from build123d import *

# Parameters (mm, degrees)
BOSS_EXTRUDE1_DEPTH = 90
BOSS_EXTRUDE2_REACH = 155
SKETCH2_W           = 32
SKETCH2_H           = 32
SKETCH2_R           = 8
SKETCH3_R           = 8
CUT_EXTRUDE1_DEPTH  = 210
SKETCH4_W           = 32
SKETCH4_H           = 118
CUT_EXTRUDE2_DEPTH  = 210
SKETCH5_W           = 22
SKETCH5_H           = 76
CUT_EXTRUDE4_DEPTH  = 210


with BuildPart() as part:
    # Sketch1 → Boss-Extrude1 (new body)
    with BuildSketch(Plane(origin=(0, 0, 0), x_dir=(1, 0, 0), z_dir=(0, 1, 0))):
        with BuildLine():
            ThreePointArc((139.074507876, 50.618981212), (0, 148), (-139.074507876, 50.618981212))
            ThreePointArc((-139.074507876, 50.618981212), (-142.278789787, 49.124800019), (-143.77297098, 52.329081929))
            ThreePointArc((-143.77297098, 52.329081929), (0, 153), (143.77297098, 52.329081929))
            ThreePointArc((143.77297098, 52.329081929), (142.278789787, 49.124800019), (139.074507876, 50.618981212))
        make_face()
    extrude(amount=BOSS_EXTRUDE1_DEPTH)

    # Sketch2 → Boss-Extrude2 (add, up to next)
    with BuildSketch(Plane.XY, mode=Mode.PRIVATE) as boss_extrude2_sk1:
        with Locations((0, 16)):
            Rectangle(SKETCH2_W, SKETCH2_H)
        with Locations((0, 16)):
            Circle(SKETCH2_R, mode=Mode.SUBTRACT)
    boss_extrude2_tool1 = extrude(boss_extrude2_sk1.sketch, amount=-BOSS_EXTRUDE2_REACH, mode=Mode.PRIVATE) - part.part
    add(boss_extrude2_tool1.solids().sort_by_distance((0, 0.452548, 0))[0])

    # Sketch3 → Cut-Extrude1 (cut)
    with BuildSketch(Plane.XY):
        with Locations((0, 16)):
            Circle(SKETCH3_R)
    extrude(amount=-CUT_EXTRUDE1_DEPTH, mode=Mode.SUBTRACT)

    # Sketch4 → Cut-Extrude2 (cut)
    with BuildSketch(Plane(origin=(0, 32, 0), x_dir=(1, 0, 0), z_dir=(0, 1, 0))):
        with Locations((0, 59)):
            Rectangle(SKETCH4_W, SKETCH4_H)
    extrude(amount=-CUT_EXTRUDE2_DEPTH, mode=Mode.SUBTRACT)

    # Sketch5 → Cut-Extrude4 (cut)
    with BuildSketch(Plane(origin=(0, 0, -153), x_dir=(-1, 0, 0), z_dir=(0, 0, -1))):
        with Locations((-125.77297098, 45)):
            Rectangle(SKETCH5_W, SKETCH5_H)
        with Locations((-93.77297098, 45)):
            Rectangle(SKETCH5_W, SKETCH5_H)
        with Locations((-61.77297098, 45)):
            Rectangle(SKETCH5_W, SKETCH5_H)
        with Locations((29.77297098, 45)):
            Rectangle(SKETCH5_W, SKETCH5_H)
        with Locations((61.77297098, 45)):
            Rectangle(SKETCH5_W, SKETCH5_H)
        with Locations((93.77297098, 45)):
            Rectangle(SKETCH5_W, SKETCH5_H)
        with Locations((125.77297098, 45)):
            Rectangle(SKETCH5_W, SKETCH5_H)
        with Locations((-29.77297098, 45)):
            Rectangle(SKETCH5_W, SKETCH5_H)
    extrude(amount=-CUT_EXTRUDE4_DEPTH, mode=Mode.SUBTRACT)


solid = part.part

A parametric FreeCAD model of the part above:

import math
import FreeCAD as App
import Part
import Sketcher
from FreeCAD import Vector
Q = App.Units.Quantity


def add_polygon(sketch, points):
    """Adds a closed chain of lines whose ends are joined by coincident constraints."""
    first, n = sketch.GeometryCount, len(points)
    for a, b in zip(points, points[1:] + points[:1]):
        sketch.addGeometry(Part.LineSegment(App.Vector(*a, 0), App.Vector(*b, 0)), False)
    for i in range(n):
        sketch.addConstraint(Sketcher.Constraint("Coincident", first + i, 2, first + (i + 1) % n, 1))

doc = App.newDocument("Part")
body = doc.addObject("PartDesign::Body", "Body")

# Sketch on XZ plane
sketch1 = body.newObject("Sketcher::SketchObject", "Sketch")
sketch1.AttachmentSupport = (doc.getObject("XZ_Plane"), [""])
sketch1.MapMode = "FlatFace"
sketch1.addGeometry([
    Part.ArcOfCircle(Part.Circle(Vector(0, 0, 0), Vector(0, 0, 1), 148), math.radians(-160), math.radians(-20)),
    Part.ArcOfCircle(Part.Circle(Vector(141.423739, -51.474032, 0), Vector(0, 0, 1), 2.5), math.radians(-20), math.radians(160)),
    Part.ArcOfCircle(Part.Circle(Vector(0, 0, 0), Vector(0, 0, 1), 153), math.radians(-160), math.radians(-20)),
    Part.ArcOfCircle(Part.Circle(Vector(-141.423739, -51.474032, 0), Vector(0, 0, 1), 2.5), math.radians(20), math.radians(200)),
], False)
sketch1.addConstraint([
    Sketcher.Constraint("Tangent", 0, 2, 1, 2),
    Sketcher.Constraint("Tangent", 1, 1, 2, 2),
    Sketcher.Constraint("Tangent", 2, 1, 3, 2),
    Sketcher.Constraint("Tangent", 3, 1, 0, 1),
    Sketcher.Constraint("Coincident", 0, 3, -1, 1),
    Sketcher.Constraint("Coincident", 2, 3, -1, 1),
    Sketcher.Constraint("Horizontal", 1, 3, 3, 3),
    Sketcher.Constraint("Radius", 0, Q("148 mm")),
    Sketcher.Constraint("Radius", 2, Q("153 mm")),
    Sketcher.Constraint("DistanceX", -1, 1, 1, 3, Q("141.423739 mm")),
])
pad1 = body.newObject("PartDesign::Pad", "Pad")
pad1.Profile = sketch1
pad1.Length = 90
pad1.Reversed = True

# Sketch on XY plane
sketch2 = body.newObject("Sketcher::SketchObject", "Sketch001")
sketch2.AttachmentSupport = (doc.getObject("XY_Plane"), [""])
sketch2.MapMode = "FlatFace"
add_polygon(sketch2, [(-16, 32), (-16, 0), (16, 0), (16, 32)])  # lines 0-3
sketch2.addGeometry(Part.Circle(Vector(0, 16, 0), Vector(0, 0, 1), 8), False)  # 4
sketch2.addConstraint([
    Sketcher.Constraint("Vertical", 0),
    Sketcher.Constraint("Horizontal", 1),
    Sketcher.Constraint("Vertical", 2),
    Sketcher.Constraint("Horizontal", 3),
    Sketcher.Constraint("Symmetric", 0, 2, 1, 2, -1, 1),
    Sketcher.Constraint("PointOnObject", 4, 3, -2),
    Sketcher.Constraint("Equal", 3, 0),
    Sketcher.Constraint("Diameter", 4, Q("16 mm")),
    Sketcher.Constraint("DistanceX", 1, 1, 1, 2, Q("32 mm")),
    Sketcher.Constraint("DistanceY", -1, 1, 4, 3, Q("16 mm")),
])
pad2 = body.newObject("PartDesign::Pad", "Pad001")
pad2.Profile = sketch2
pad2.Type = "UpToFirst"
pad2.Reversed = True

# Sketch on XY plane
sketch3 = body.newObject("Sketcher::SketchObject", "Sketch002")
sketch3.AttachmentSupport = (doc.getObject("XY_Plane"), [""])
sketch3.MapMode = "FlatFace"
sketch3.addGeometry(Part.Circle(Vector(0, 16, 0), Vector(0, 0, 1), 8), False)
sketch3.addConstraint([
    Sketcher.Constraint("PointOnObject", 0, 3, -2),
    Sketcher.Constraint("Diameter", 0, Q("16 mm")),
    Sketcher.Constraint("DistanceY", -1, 1, 0, 3, Q("16 mm")),
])
pocket1 = body.newObject("PartDesign::Pocket", "Pocket")
pocket1.Profile = sketch3
pocket1.Length = 210

# Sketch on XZ plane
sketch4 = body.newObject("Sketcher::SketchObject", "Sketch003")
sketch4.AttachmentSupport = (doc.getObject("XZ_Plane"), [""])
sketch4.MapMode = "FlatFace"
sketch4.AttachmentOffset = App.Placement(Vector(0, 0, -32), App.Rotation())
add_polygon(sketch4, [(-16, -118), (-16, 0), (16, 0), (16, -118)])  # lines 0-3
sketch4.addConstraint([
    Sketcher.Constraint("Vertical", 0),
    Sketcher.Constraint("Horizontal", 1),
    Sketcher.Constraint("Vertical", 2),
    Sketcher.Constraint("Horizontal", 3),
    Sketcher.Constraint("Symmetric", 0, 2, 1, 2, -1, 1),
    Sketcher.Constraint("DistanceX", 1, 1, 1, 2, Q("32 mm")),
    Sketcher.Constraint("DistanceY", 0, 1, 0, 2, Q("118 mm")),
])
pocket2 = body.newObject("PartDesign::Pocket", "Pocket001")
pocket2.Profile = sketch4
pocket2.Length = 210
pocket2.Reversed = True

# Sketch on XY plane
sketch5 = body.newObject("Sketcher::SketchObject", "Sketch004")
sketch5.AttachmentSupport = (doc.getObject("XY_Plane"), [""])
sketch5.MapMode = "FlatFace"
sketch5.AttachmentOffset = App.Placement(Vector(0, 0, -153), App.Rotation())
add_polygon(sketch5, [(136.772971, 83), (136.772971, 7), (114.772971, 7), (114.772971, 83)])  # lines 0-3
add_polygon(sketch5, [(104.772971, 83), (104.772971, 7), (82.772971, 7), (82.772971, 83)])  # lines 4-7
add_polygon(sketch5, [(72.772971, 83), (72.772971, 7), (50.772971, 7), (50.772971, 83)])  # lines 8-11
add_polygon(sketch5, [(-18.772971, 83), (-18.772971, 7), (-40.772971, 7), (-40.772971, 83)])  # lines 12-15
add_polygon(sketch5, [(-50.772971, 83), (-50.772971, 7), (-72.772971, 7), (-72.772971, 83)])  # lines 16-19
add_polygon(sketch5, [(-82.772971, 83), (-82.772971, 7), (-104.772971, 7), (-104.772971, 83)])  # lines 20-23
add_polygon(sketch5, [(-114.772971, 83), (-114.772971, 7), (-136.772971, 7), (-136.772971, 83)])  # lines 24-27
add_polygon(sketch5, [(40.772971, 83), (40.772971, 7), (18.772971, 7), (18.772971, 83)])  # lines 28-31
sketch5.addConstraint([
    Sketcher.Constraint("Vertical", 0),
    Sketcher.Constraint("Horizontal", 1),
    Sketcher.Constraint("Vertical", 2),
    Sketcher.Constraint("Horizontal", 3),
    Sketcher.Constraint("Vertical", 4),
    Sketcher.Constraint("Horizontal", 5),
    Sketcher.Constraint("Vertical", 6),
    Sketcher.Constraint("Horizontal", 7),
    Sketcher.Constraint("Vertical", 8),
    Sketcher.Constraint("Horizontal", 9),
    Sketcher.Constraint("Vertical", 10),
    Sketcher.Constraint("Horizontal", 11),
    Sketcher.Constraint("Vertical", 12),
    Sketcher.Constraint("Horizontal", 13),
    Sketcher.Constraint("Vertical", 14),
    Sketcher.Constraint("Horizontal", 15),
    Sketcher.Constraint("Vertical", 16),
    Sketcher.Constraint("Horizontal", 17),
    Sketcher.Constraint("Vertical", 18),
    Sketcher.Constraint("Horizontal", 19),
    Sketcher.Constraint("Vertical", 20),
    Sketcher.Constraint("Horizontal", 21),
    Sketcher.Constraint("Vertical", 22),
    Sketcher.Constraint("Horizontal", 23),
    Sketcher.Constraint("Vertical", 24),
    Sketcher.Constraint("Horizontal", 25),
    Sketcher.Constraint("Vertical", 26),
    Sketcher.Constraint("Horizontal", 27),
    Sketcher.Constraint("Vertical", 28),
    Sketcher.Constraint("Horizontal", 29),
    Sketcher.Constraint("Vertical", 30),
    Sketcher.Constraint("Horizontal", 31),
    Sketcher.Constraint("Symmetric", 9, 2, 16, 2, -2),
    Sketcher.Constraint("Symmetric", 11, 2, 18, 2, -2),
    Sketcher.Constraint("Symmetric", 5, 2, 20, 2, -2),
    Sketcher.Constraint("Symmetric", 7, 2, 22, 2, -2),
    Sketcher.Constraint("Symmetric", 1, 2, 24, 2, -2),
    Sketcher.Constraint("Symmetric", 3, 2, 26, 2, -2),
    Sketcher.Constraint("Symmetric", 13, 2, 28, 2, -2),
    Sketcher.Constraint("Symmetric", 15, 2, 30, 2, -2),
    Sketcher.Constraint("Horizontal", 1, 2, 4, 2),
    Sketcher.Constraint("Horizontal", 3, 2, 6, 2),
    Sketcher.Constraint("Horizontal", 5, 2, 8, 2),
    Sketcher.Constraint("Horizontal", 7, 2, 10, 2),
    Sketcher.Constraint("Horizontal", 9, 2, 12, 2),
    Sketcher.Constraint("Horizontal", 11, 2, 14, 2),
    Sketcher.Constraint("Equal", 3, 5),
    Sketcher.Constraint("Equal", 7, 9),
    Sketcher.Constraint("Equal", 11, 13),
    Sketcher.Constraint("DistanceX", 1, 2, 1, 1, Q("22 mm")),
    Sketcher.Constraint("DistanceY", 0, 2, 0, 1, Q("76 mm")),
    Sketcher.Constraint("DistanceY", -1, 1, 0, 2, Q("7 mm")),
    Sketcher.Constraint("DistanceX", 4, 2, 1, 2, Q("10 mm")),
    Sketcher.Constraint("DistanceX", 8, 2, 5, 2, Q("10 mm")),
    Sketcher.Constraint("DistanceX", 16, 2, 13, 2, Q("10 mm")),
    Sketcher.Constraint("DistanceX", -1, 1, 0, 2, Q("136.772971 mm")),
])
pocket3 = body.newObject("PartDesign::Pocket", "Pocket002")
pocket3.Profile = sketch5
pocket3.Length = 210
pocket3.Reversed = True

doc.recompute()
